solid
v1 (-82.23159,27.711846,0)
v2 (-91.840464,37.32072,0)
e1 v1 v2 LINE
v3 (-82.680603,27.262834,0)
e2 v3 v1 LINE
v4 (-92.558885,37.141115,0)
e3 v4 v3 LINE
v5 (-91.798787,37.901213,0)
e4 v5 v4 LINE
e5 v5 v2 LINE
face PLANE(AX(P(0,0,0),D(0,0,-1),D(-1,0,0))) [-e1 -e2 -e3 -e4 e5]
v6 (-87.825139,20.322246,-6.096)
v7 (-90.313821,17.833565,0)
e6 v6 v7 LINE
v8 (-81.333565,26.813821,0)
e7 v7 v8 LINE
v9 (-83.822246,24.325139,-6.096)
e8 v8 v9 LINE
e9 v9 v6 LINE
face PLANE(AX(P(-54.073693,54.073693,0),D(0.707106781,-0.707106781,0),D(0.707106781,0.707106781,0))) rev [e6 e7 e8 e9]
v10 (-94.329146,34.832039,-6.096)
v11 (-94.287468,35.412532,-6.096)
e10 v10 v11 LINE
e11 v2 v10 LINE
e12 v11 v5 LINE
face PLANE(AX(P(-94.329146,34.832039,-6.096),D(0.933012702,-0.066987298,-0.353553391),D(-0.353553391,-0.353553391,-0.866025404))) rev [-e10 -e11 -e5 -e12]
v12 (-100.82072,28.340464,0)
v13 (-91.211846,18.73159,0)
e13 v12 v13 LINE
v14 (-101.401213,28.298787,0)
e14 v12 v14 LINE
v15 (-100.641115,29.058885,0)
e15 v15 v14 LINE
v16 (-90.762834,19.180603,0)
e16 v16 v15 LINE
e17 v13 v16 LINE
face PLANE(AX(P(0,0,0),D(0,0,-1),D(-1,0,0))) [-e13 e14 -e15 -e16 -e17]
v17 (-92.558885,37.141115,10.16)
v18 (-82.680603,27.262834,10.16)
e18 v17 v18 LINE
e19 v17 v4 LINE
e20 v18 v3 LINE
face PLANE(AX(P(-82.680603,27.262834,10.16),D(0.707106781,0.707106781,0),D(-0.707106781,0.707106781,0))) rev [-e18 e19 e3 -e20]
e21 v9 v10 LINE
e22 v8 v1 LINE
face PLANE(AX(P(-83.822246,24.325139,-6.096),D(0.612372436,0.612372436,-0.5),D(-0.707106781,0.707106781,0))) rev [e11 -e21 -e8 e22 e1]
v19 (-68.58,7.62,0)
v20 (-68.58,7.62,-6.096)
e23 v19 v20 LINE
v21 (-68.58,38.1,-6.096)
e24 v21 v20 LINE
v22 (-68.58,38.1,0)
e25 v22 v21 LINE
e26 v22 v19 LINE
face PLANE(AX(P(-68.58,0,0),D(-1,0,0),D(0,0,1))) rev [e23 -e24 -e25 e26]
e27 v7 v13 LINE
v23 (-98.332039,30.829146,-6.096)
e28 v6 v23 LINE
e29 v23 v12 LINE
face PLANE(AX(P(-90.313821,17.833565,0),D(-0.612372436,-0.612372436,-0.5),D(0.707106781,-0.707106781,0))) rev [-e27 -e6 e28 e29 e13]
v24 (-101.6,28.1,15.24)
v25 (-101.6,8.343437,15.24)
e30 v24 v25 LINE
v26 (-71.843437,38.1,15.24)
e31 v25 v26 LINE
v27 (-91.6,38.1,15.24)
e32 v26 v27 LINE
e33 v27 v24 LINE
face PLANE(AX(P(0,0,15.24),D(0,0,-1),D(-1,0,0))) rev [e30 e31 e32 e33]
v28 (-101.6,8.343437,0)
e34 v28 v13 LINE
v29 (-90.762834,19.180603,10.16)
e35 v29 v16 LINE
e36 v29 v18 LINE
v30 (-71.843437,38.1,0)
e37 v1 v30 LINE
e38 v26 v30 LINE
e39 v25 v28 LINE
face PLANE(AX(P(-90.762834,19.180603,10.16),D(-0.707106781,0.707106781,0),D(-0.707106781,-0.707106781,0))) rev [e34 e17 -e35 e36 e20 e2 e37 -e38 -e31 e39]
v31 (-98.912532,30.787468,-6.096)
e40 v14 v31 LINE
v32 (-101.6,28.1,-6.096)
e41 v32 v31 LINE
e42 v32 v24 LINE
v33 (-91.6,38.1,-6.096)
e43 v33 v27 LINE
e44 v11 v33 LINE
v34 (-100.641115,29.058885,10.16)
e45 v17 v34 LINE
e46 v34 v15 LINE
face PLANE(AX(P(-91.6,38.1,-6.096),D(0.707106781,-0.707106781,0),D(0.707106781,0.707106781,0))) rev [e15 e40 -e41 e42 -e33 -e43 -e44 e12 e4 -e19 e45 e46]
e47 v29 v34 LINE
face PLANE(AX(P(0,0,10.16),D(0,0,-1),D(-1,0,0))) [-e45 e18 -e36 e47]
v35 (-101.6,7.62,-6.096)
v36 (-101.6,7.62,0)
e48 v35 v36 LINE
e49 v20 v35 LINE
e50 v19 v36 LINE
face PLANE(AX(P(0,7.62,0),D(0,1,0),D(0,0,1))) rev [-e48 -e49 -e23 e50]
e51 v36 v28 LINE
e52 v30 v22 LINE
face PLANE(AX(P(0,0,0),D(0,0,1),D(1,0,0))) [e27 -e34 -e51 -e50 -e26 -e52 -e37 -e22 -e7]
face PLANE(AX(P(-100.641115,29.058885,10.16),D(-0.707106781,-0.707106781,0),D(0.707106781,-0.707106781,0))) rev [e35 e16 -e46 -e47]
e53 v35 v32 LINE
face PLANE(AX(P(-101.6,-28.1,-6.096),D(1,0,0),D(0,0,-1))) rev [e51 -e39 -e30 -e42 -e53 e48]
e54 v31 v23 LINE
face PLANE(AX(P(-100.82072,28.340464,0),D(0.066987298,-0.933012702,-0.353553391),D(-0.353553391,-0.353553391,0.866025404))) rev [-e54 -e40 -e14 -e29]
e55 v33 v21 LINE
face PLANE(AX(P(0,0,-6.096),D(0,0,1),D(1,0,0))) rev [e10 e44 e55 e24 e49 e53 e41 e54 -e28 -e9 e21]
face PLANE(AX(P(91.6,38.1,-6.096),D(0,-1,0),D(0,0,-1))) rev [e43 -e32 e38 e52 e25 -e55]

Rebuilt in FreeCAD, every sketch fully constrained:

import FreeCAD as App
import Part
import Sketcher
Q = App.Units.Quantity


def edges_at(feature, points):
    """Names of the edges that pass closest to the given points."""
    edges = feature.Shape.Edges
    near = lambda p: min(range(len(edges)), key=lambda i: edges[i].distToShape(Part.Vertex(*p))[0])
    return sorted({f"Edge{near(p) + 1}" for p in points})

doc = App.newDocument("Part")
body = doc.addObject("PartDesign::Body", "Body")

# Sketch on XY plane
sketch1 = body.newObject("Sketcher::SketchObject", "Sketch")
sketch1.AttachmentSupport = (doc.getObject("XY_Plane"), [""])
sketch1.MapMode = "FlatFace"
sketch1.addGeometry(Part.LineSegment(App.Vector(-41.846259, 25.4, 0), App.Vector(-41.846259, 21.59, 0)), False)
sketch1.addGeometry(Part.LineSegment(App.Vector(-41.846259, 21.59, 0), App.Vector(59.753741, 21.59, 0)), False)
sketch1.addGeometry(Part.LineSegment(App.Vector(59.753741, 21.59, 0), App.Vector(59.753741, -22.86, 0)), False)
sketch1.addGeometry(Part.LineSegment(App.Vector(59.753741, -22.86, 0), App.Vector(-41.846259, -22.86, 0)), False)
sketch1.addGeometry(Part.LineSegment(App.Vector(-41.846259, -22.86, 0), App.Vector(-41.846259, -25.4, 0)), False)
sketch1.addGeometry(Part.LineSegment(App.Vector(-41.846259, -25.4, 0), App.Vector(63.563741, -25.4, 0)), False)
sketch1.addGeometry(Part.LineSegment(App.Vector(63.563741, -25.4, 0), App.Vector(63.563741, 25.4, 0)), False)
sketch1.addGeometry(Part.LineSegment(App.Vector(63.563741, 25.4, 0), App.Vector(-41.846259, 25.4, 0)), False)
sketch1.addConstraint(Sketcher.Constraint("Coincident", 0, 2, 1, 1))
sketch1.addConstraint(Sketcher.Constraint("Coincident", 1, 2, 2, 1))
sketch1.addConstraint(Sketcher.Constraint("Coincident", 2, 2, 3, 1))
sketch1.addConstraint(Sketcher.Constraint("Coincident", 3, 2, 4, 1))
sketch1.addConstraint(Sketcher.Constraint("Coincident", 4, 2, 5, 1))
sketch1.addConstraint(Sketcher.Constraint("Coincident", 5, 2, 6, 1))
sketch1.addConstraint(Sketcher.Constraint("Coincident", 6, 2, 7, 1))
sketch1.addConstraint(Sketcher.Constraint("Coincident", 7, 2, 0, 1))
sketch1.addConstraint(Sketcher.Constraint("Vertical", 0))
sketch1.addConstraint(Sketcher.Constraint("Horizontal", 1))
sketch1.addConstraint(Sketcher.Constraint("Vertical", 2))
sketch1.addConstraint(Sketcher.Constraint("Horizontal", 3))
sketch1.addConstraint(Sketcher.Constraint("Vertical", 4))
sketch1.addConstraint(Sketcher.Constraint("Horizontal", 5))
sketch1.addConstraint(Sketcher.Constraint("Vertical", 6))
sketch1.addConstraint(Sketcher.Constraint("Horizontal", 7))
sketch1.addConstraint(Sketcher.Constraint("Symmetric", 4, 2, 7, 2, -1))
sketch1.addConstraint(Sketcher.Constraint("DistanceX", 1, 1, 1, 2, Q("4 in")))
sketch1.addConstraint(Sketcher.Constraint("DistanceY", 6, 1, 6, 2, Q("2 in")))
sketch1.addConstraint(Sketcher.Constraint("DistanceY", 4, 2, 4, 1, Q("0.1 in")))
sketch1.addConstraint(Sketcher.Constraint("DistanceX", 5, 1, 5, 2, Q("4.15 in")))
sketch1.addConstraint(Sketcher.Constraint("DistanceY", 0, 2, 0, 1, Q("0.15 in")))
sketch1.addConstraint(Sketcher.Constraint("DistanceX", 0, 2, -1, 1, 41.846259))
pad1 = body.newObject("PartDesign::Pad", "Pad")
pad1.Profile = sketch1
pad1.Length = Q("1.08 in")

# Sketch on XY plane
sketch2 = body.newObject("Sketcher::SketchObject", "Sketch001")
sketch2.AttachmentSupport = (doc.getObject("XY_Plane"), [""])
sketch2.MapMode = "FlatFace"
sketch2.addGeometry(Part.LineSegment(App.Vector(59.753741, 21.59, 0), App.Vector(-41.846259, 21.59, 0)), False)
sketch2.addGeometry(Part.LineSegment(App.Vector(-41.846259, 21.59, 0), App.Vector(-41.846259, 13.97, 0)), False)
sketch2.addGeometry(Part.LineSegment(App.Vector(-41.846259, 13.97, 0), App.Vector(3.873741, 13.97, 0)), False)
sketch2.addGeometry(Part.LineSegment(App.Vector(3.873741, 13.97, 0), App.Vector(3.873741, -6.35, 0)), False)
sketch2.addGeometry(Part.LineSegment(App.Vector(3.873741, -6.35, 0), App.Vector(-41.846259, -6.35, 0)), False)
sketch2.addGeometry(Part.LineSegment(App.Vector(-41.846259, -6.35, 0), App.Vector(-41.846259, -22.86, 0)), False)
sketch2.addGeometry(Part.LineSegment(App.Vector(-41.846259, -22.86, 0), App.Vector(59.753741, -22.86, 0)), False)
sketch2.addGeometry(Part.LineSegment(App.Vector(59.753741, -22.86, 0), App.Vector(59.753741, 21.59, 0)), False)
sketch2.addConstraint(Sketcher.Constraint("Coincident", 0, 2, 1, 1))
sketch2.addConstraint(Sketcher.Constraint("Coincident", 1, 2, 2, 1))
sketch2.addConstraint(Sketcher.Constraint("Coincident", 2, 2, 3, 1))
sketch2.addConstraint(Sketcher.Constraint("Coincident", 3, 2, 4, 1))
sketch2.addConstraint(Sketcher.Constraint("Coincident", 4, 2, 5, 1))
sketch2.addConstraint(Sketcher.Constraint("Coincident", 5, 2, 6, 1))
sketch2.addConstraint(Sketcher.Constraint("Coincident", 6, 2, 7, 1))
sketch2.addConstraint(Sketcher.Constraint("Coincident", 7, 2, 0, 1))
sketch2.addConstraint(Sketcher.Constraint("Horizontal", 0))
sketch2.addConstraint(Sketcher.Constraint("Vertical", 1))
sketch2.addConstraint(Sketcher.Constraint("Horizontal", 2))
sketch2.addConstraint(Sketcher.Constraint("Vertical", 3))
sketch2.addConstraint(Sketcher.Constraint("Horizontal", 4))
sketch2.addConstraint(Sketcher.Constraint("Vertical", 5))
sketch2.addConstraint(Sketcher.Constraint("Horizontal", 6))
sketch2.addConstraint(Sketcher.Constraint("Vertical", 7))
sketch2.addConstraint(Sketcher.Constraint("Vertical", 1, 2, 4, 2))
sketch2.addConstraint(Sketcher.Constraint("DistanceX", 0, 2, 0, 1, Q("4 in")))
sketch2.addConstraint(Sketcher.Constraint("DistanceX", 2, 1, 2, 2, Q("1.8 in")))
sketch2.addConstraint(Sketcher.Constraint("DistanceY", 1, 2, 1, 1, Q("0.3 in")))
sketch2.addConstraint(Sketcher.Constraint("DistanceY", 3, 2, 3, 1, Q("0.8 in")))
sketch2.addConstraint(Sketcher.Constraint("DistanceY", 5, 2, 5, 1, Q("0.65 in")))
sketch2.addConstraint(Sketcher.Constraint("DistanceY", 5, 2, -1, 1, Q("0.9 in")))
sketch2.addConstraint(Sketcher.Constraint("DistanceX", 0, 2, -1, 1, 41.846259))
pad2 = body.newObject("PartDesign::Pad", "Pad001")
pad2.Profile = sketch2
pad2.Length = Q("0.2 in")

# Sketch on XY plane
sketch3 = body.newObject("Sketcher::SketchObject", "Sketch002")
sketch3.AttachmentSupport = (doc.getObject("XY_Plane"), [""])
sketch3.MapMode = "FlatFace"
sketch3.AttachmentOffset = App.Placement(App.Vector(0, 0, 0.2 * 25.4), App.Rotation())
sketch3.addGeometry(Part.LineSegment(App.Vector(-33.927137, 21.59, 0), App.Vector(-37.065382, 21.59, 0)), False)
sketch3.addGeometry(Part.LineSegment(App.Vector(-37.065382, 21.59, 0), App.Vector(-38.634504, 18.8722, 0)), False)
sketch3.addGeometry(Part.LineSegment(App.Vector(-38.634504, 18.8722, 0), App.Vector(-37.065382, 16.1544, 0)), False)
sketch3.addGeometry(Part.LineSegment(App.Vector(-37.065382, 16.1544, 0), App.Vector(-33.927137, 16.1544, 0)), False)
sketch3.addGeometry(Part.LineSegment(App.Vector(-33.927137, 16.1544, 0), App.Vector(-32.358014, 18.8722, 0)), False)
sketch3.addGeometry(Part.LineSegment(App.Vector(-32.358014, 18.8722, 0), App.Vector(-33.927137, 21.59, 0)), False)
sketch3.addGeometry(Part.Circle(App.Vector(-35.496259, 18.8722, 0), App.Vector(0, 0, 1), 1.524), False)
sketch3.addGeometry(Part.LineSegment(App.Vector(28.847137, 16.1544, 0), App.Vector(31.985382, 16.1544, 0)), False)
sketch3.addGeometry(Part.LineSegment(App.Vector(31.985382, 16.1544, 0), App.Vector(33.554504, 18.8722, 0)), False)
sketch3.addGeometry(Part.LineSegment(App.Vector(33.554504, 18.8722, 0), App.Vector(31.985382, 21.59, 0)), False)
sketch3.addGeometry(Part.LineSegment(App.Vector(31.985382, 21.59, 0), App.Vector(28.847137, 21.59, 0)), False)
sketch3.addGeometry(Part.LineSegment(App.Vector(28.847137, 21.59, 0), App.Vector(27.278014, 18.8722, 0)), False)
sketch3.addGeometry(Part.LineSegment(App.Vector(27.278014, 18.8722, 0), App.Vector(28.847137, 16.1544, 0)), False)
sketch3.addGeometry(Part.Circle(App.Vector(30.416259, 18.8722, 0), App.Vector(0, 0, 1), 1.524), False)
sketch3.addGeometry(Part.LineSegment(App.Vector(33.554504, -18.8722, 0), App.Vector(31.985382, -16.1544, 0)), False)
sketch3.addGeometry(Part.LineSegment(App.Vector(31.985382, -16.1544, 0), App.Vector(28.847137, -16.1544, 0)), False)
sketch3.addGeometry(Part.LineSegment(App.Vector(28.847137, -16.1544, 0), App.Vector(27.278014, -18.8722, 0)), False)
sketch3.addGeometry(Part.LineSegment(App.Vector(27.278014, -18.8722, 0), App.Vector(28.847137, -21.59, 0)), False)
sketch3.addGeometry(Part.LineSegment(App.Vector(28.847137, -21.59, 0), App.Vector(31.985382, -21.59, 0)), False)
sketch3.addGeometry(Part.LineSegment(App.Vector(31.985382, -21.59, 0), App.Vector(33.554504, -18.8722, 0)), False)
sketch3.addGeometry(Part.Circle(App.Vector(30.416259, -18.8722, 0), App.Vector(0, 0, 1), 1.524), False)
sketch3.addGeometry(Part.LineSegment(App.Vector(-37.065382, -16.1544, 0), App.Vector(-38.634504, -18.8722, 0)), False)
sketch3.addGeometry(Part.LineSegment(App.Vector(-38.634504, -18.8722, 0), App.Vector(-37.065382, -21.59, 0)), False)
sketch3.addGeometry(Part.LineSegment(App.Vector(-37.065382, -21.59, 0), App.Vector(-33.927137, -21.59, 0)), False)
sketch3.addGeometry(Part.LineSegment(App.Vector(-33.927137, -21.59, 0), App.Vector(-32.358014, -18.8722, 0)), False)
sketch3.addGeometry(Part.LineSegment(App.Vector(-32.358014, -18.8722, 0), App.Vector(-33.927137, -16.1544, 0)), False)
sketch3.addGeometry(Part.LineSegment(App.Vector(-33.927137, -16.1544, 0), App.Vector(-37.065382, -16.1544, 0)), False)
sketch3.addGeometry(Part.Circle(App.Vector(-35.496259, -18.8722, 0), App.Vector(0, 0, 1), 1.524), False)
sketch3.addConstraint(Sketcher.Constraint("Coincident", 0, 2, 1, 1))
sketch3.addConstraint(Sketcher.Constraint("Coincident", 1, 2, 2, 1))
sketch3.addConstraint(Sketcher.Constraint("Coincident", 2, 2, 3, 1))
sketch3.addConstraint(Sketcher.Constraint("Coincident", 3, 2, 4, 1))
sketch3.addConstraint(Sketcher.Constraint("Coincident", 4, 2, 5, 1))
sketch3.addConstraint(Sketcher.Constraint("Coincident", 5, 2, 0, 1))
sketch3.addConstraint(Sketcher.Constraint("Coincident", 7, 2, 8, 1))
sketch3.addConstraint(Sketcher.Constraint("Coincident", 8, 2, 9, 1))
sketch3.addConstraint(Sketcher.Constraint("Coincident", 9, 2, 10, 1))
sketch3.addConstraint(Sketcher.Constraint("Coincident", 10, 2, 11, 1))
sketch3.addConstraint(Sketcher.Constraint("Coincident", 11, 2, 12, 1))
sketch3.addConstraint(Sketcher.Constraint("Coincident", 12, 2, 7, 1))
sketch3.addConstraint(Sketcher.Constraint("Coincident", 14, 2, 15, 1))
sketch3.addConstraint(Sketcher.Constraint("Coincident", 15, 2, 16, 1))
sketch3.addConstraint(Sketcher.Constraint("Coincident", 16, 2, 17, 1))
sketch3.addConstraint(Sketcher.Constraint("Coincident", 17, 2, 18, 1))
sketch3.addConstraint(Sketcher.Constraint("Coincident", 18, 2, 19, 1))
sketch3.addConstraint(Sketcher.Constraint("Coincident", 19, 2, 14, 1))
sketch3.addConstraint(Sketcher.Constraint("Coincident", 21, 2, 22, 1))
sketch3.addConstraint(Sketcher.Constraint("Coincident", 22, 2, 23, 1))
sketch3.addConstraint(Sketcher.Constraint("Coincident", 23, 2, 24, 1))
sketch3.addConstraint(Sketcher.Constraint("Coincident", 24, 2, 25, 1))
sketch3.addConstraint(Sketcher.Constraint("Coincident", 25, 2, 26, 1))
sketch3.addConstraint(Sketcher.Constraint("Coincident", 26, 2, 21, 1))
sketch3.addConstraint(Sketcher.Constraint("Horizontal", 0))
sketch3.addConstraint(Sketcher.Constraint("Horizontal", 3))
sketch3.addConstraint(Sketcher.Constraint("Horizontal", 7))
sketch3.addConstraint(Sketcher.Constraint("Horizontal", 10))
sketch3.addConstraint(Sketcher.Constraint("Horizontal", 15))
sketch3.addConstraint(Sketcher.Constraint("Horizontal", 18))
sketch3.addConstraint(Sketcher.Constraint("Horizontal", 23))
sketch3.addConstraint(Sketcher.Constraint("Horizontal", 26))
sketch3.addConstraint(Sketcher.Constraint("Equal", 6, 13))
sketch3.addConstraint(Sketcher.Constraint("Equal", 13, 20))
sketch3.addConstraint(Sketcher.Constraint("Equal", 20, 27))
sketch3.addConstraint(Sketcher.Constraint("Symmetric", 13, 3, 20, 3, -1))
sketch3.addConstraint(Sketcher.Constraint("Symmetric", 6, 3, 27, 3, -1))
sketch3.addConstraint(Sketcher.Constraint("Symmetric", 7, 2, 14, 2, -1))
sketch3.addConstraint(Sketcher.Constraint("Symmetric", 11, 2, 16, 2, -1))
sketch3.addConstraint(Sketcher.Constraint("Symmetric", 10, 2, 17, 2, -1))
sketch3.addConstraint(Sketcher.Constraint("Symmetric", 8, 2, 19, 2, -1))
sketch3.addConstraint(Sketcher.Constraint("Symmetric", 1, 2, 21, 2, -1))
sketch3.addConstraint(Sketcher.Constraint("Symmetric", 0, 2, 22, 2, -1))
sketch3.addConstraint(Sketcher.Constraint("Symmetric", 4, 2, 24, 2, -1))
sketch3.addConstraint(Sketcher.Constraint("Symmetric", 3, 2, 25, 2, -1))
sketch3.addConstraint(Sketcher.Constraint("Parallel", 1, 4))
sketch3.addConstraint(Sketcher.Constraint("Parallel", 2, 5))
sketch3.addConstraint(Sketcher.Constraint("Parallel", 4, 8))
sketch3.addConstraint(Sketcher.Constraint("Parallel", 5, 9))
sketch3.addConstraint(Sketcher.Constraint("Parallel", 8, 11))
sketch3.addConstraint(Sketcher.Constraint("Parallel", 9, 12))
sketch3.addConstraint(Sketcher.Constraint("Parallel", 12, 14))
sketch3.addConstraint(Sketcher.Constraint("Parallel", 11, 16))
sketch3.addConstraint(Sketcher.Constraint("Parallel", 16, 19))
sketch3.addConstraint(Sketcher.Constraint("Parallel", 19, 21))
sketch3.addConstraint(Sketcher.Constraint("Parallel", 21, 24))
sketch3.addConstraint(Sketcher.Constraint("Horizontal", 6, 3, 13, 3))
sketch3.addConstraint(Sketcher.Constraint("Horizontal", 13, 3, 1, 2))
sketch3.addConstraint(Sketcher.Constraint("Horizontal", 1, 2, 4, 2))
sketch3.addConstraint(Sketcher.Constraint("Horizontal", 3, 2, 7, 2))
sketch3.addConstraint(Sketcher.Constraint("Horizontal", 4, 2, 8, 2))
sketch3.addConstraint(Sketcher.Constraint("Horizontal", 5, 2, 9, 2))
sketch3.addConstraint(Sketcher.Constraint("Horizontal", 8, 2, 11, 2))
sketch3.addConstraint(Sketcher.Constraint("Vertical", 0, 2, 2, 2))
sketch3.addConstraint(Sketcher.Constraint("Equal", 3, 7))
sketch3.addConstraint(Sketcher.Constraint("Diameter", 6, Q("0.12 in")))
sketch3.addConstraint(Sketcher.Constraint("Angle", 1, Q("-120 deg")))
sketch3.addConstraint(Sketcher.Constraint("DistanceY", -1, 1, 0, 2, Q("0.85 in")))
sketch3.addConstraint(Sketcher.Constraint("DistanceY", -1, 1, 6, 3, Q("0.743 in")))
sketch3.addConstraint(Sketcher.Constraint("DistanceX", 0, 2, 0, 1, 3.138245))
sketch3.addConstraint(Sketcher.Constraint("DistanceX", 6, 3, -1, 1, 35.496259))
sketch3.addConstraint(Sketcher.Constraint("DistanceX", -1, 1, 13, 3, 30.416259))
sketch3.addConstraint(Sketcher.Constraint("DistanceX", 0, 2, -1, 1, 37.065382))
sketch3.addConstraint(Sketcher.Constraint("DistanceX", -1, 1, 7, 2, 31.985382))
pocket1 = body.newObject("PartDesign::Pocket", "Pocket")
pocket1.Profile = sketch3
pocket1.Length = Q("0.09 in")

# Sketch on XY plane
sketch4 = body.newObject("Sketcher::SketchObject", "Sketch003")
sketch4.AttachmentSupport = (doc.getObject("XY_Plane"), [""])
sketch4.MapMode = "FlatFace"
sketch4.AttachmentOffset = App.Placement(App.Vector(0, 0, 0.2 * 25.4), App.Rotation())
sketch4.addGeometry(Part.Circle(App.Vector(-35.496259, 18.8722, 0), App.Vector(0, 0, 1), 1.524), False)
sketch4.addGeometry(Part.Circle(App.Vector(30.416259, 18.8722, 0), App.Vector(0, 0, 1), 1.524), False)
sketch4.addGeometry(Part.Circle(App.Vector(-35.496259, -18.8722, 0), App.Vector(0, 0, 1), 1.524), False)
sketch4.addGeometry(Part.Circle(App.Vector(30.416259, -18.8722, 0), App.Vector(0, 0, 1), 1.524), False)
sketch4.addConstraint(Sketcher.Constraint("Equal", 0, 1))
sketch4.addConstraint(Sketcher.Constraint("Equal", 1, 2))
sketch4.addConstraint(Sketcher.Constraint("Equal", 2, 3))
sketch4.addConstraint(Sketcher.Constraint("Symmetric", 0, 3, 2, 3, -1))
sketch4.addConstraint(Sketcher.Constraint("Symmetric", 1, 3, 3, 3, -1))
sketch4.addConstraint(Sketcher.Constraint("Horizontal", 0, 3, 1, 3))
sketch4.addConstraint(Sketcher.Constraint("Diameter", 0, Q("0.12 in")))
sketch4.addConstraint(Sketcher.Constraint("DistanceY", -1, 1, 0, 3, Q("0.743 in")))
sketch4.addConstraint(Sketcher.Constraint("DistanceX", 0, 3, -1, 1, 35.496259))
sketch4.addConstraint(Sketcher.Constraint("DistanceX", -1, 1, 1, 3, 30.416259))
pocket2 = body.newObject("PartDesign::Pocket", "Pocket001")
pocket2.Profile = sketch4
pocket2.Type = "ThroughAll"

# Sketch on XY plane
sketch5 = body.newObject("Sketcher::SketchObject", "Sketch004")
sketch5.AttachmentSupport = (doc.getObject("XY_Plane"), [""])
sketch5.MapMode = "FlatFace"
sketch5.AttachmentOffset = App.Placement(App.Vector(0, 0, 1.08 * 25.4), App.Rotation())
sketch5.addGeometry(Part.LineSegment(App.Vector(63.563741, 25.4, 0), App.Vector(-41.846259, 25.4, 0)), False)
sketch5.addGeometry(Part.LineSegment(App.Vector(-41.846259, 25.4, 0), App.Vector(-41.846259, 6.35, 0)), False)
sketch5.addGeometry(Part.LineSegment(App.Vector(-41.846259, 6.35, 0), App.Vector(-35.496259, 6.35, 0)), False)
sketch5.addGeometry(Part.LineSegment(App.Vector(-35.496259, 6.35, 0), App.Vector(-35.496259, -6.35, 0)), False)
sketch5.addGeometry(Part.LineSegment(App.Vector(-35.496259, -6.35, 0), App.Vector(-41.846259, -6.35, 0)), False)
sketch5.addGeometry(Part.LineSegment(App.Vector(-41.846259, -6.35, 0), App.Vector(-41.846259, -25.4, 0)), False)
sketch5.addGeometry(Part.LineSegment(App.Vector(-41.846259, -25.4, 0), App.Vector(63.563741, -25.4, 0)), False)
sketch5.addGeometry(Part.LineSegment(App.Vector(63.563741, -25.4, 0), App.Vector(63.563741, 25.4, 0)), False)
sketch5.addConstraint(Sketcher.Constraint("Coincident", 0, 2, 1, 1))
sketch5.addConstraint(Sketcher.Constraint("Coincident", 1, 2, 2, 1))
sketch5.addConstraint(Sketcher.Constraint("Coincident", 2, 2, 3, 1))
sketch5.addConstraint(Sketcher.Constraint("Coincident", 3, 2, 4, 1))
sketch5.addConstraint(Sketcher.Constraint("Coincident", 4, 2, 5, 1))
sketch5.addConstraint(Sketcher.Constraint("Coincident", 5, 2, 6, 1))
sketch5.addConstraint(Sketcher.Constraint("Coincident", 6, 2, 7, 1))
sketch5.addConstraint(Sketcher.Constraint("Coincident", 7, 2, 0, 1))
sketch5.addConstraint(Sketcher.Constraint("Horizontal", 0))
sketch5.addConstraint(Sketcher.Constraint("Vertical", 1))
sketch5.addConstraint(Sketcher.Constraint("Horizontal", 2))
sketch5.addConstraint(Sketcher.Constraint("Vertical", 3))
sketch5.addConstraint(Sketcher.Constraint("Horizontal", 4))
sketch5.addConstraint(Sketcher.Constraint("Vertical", 5))
sketch5.addConstraint(Sketcher.Constraint("Horizontal", 6))
sketch5.addConstraint(Sketcher.Constraint("Vertical", 7))
sketch5.addConstraint(Sketcher.Constraint("Symmetric", 1, 2, 4, 2, -1))
sketch5.addConstraint(Sketcher.Constraint("Equal", 1, 5))
sketch5.addConstraint(Sketcher.Constraint("DistanceY", 7, 1, 7, 2, Q("2 in")))
sketch5.addConstraint(Sketcher.Constraint("DistanceY", 3, 2, 3, 1, Q("0.5 in")))
sketch5.addConstraint(Sketcher.Constraint("DistanceX", 0, 2, 0, 1, Q("4.15 in")))
sketch5.addConstraint(Sketcher.Constraint("DistanceX", 2, 1, 2, 2, Q("0.25 in")))
sketch5.addConstraint(Sketcher.Constraint("DistanceX", 0, 2, -1, 1, 41.846259))
pad3 = body.newObject("PartDesign::Pad", "Pad002")
pad3.Profile = sketch5
pad3.Length = Q("0.15 in")
doc.recompute()

fillet = body.newObject("PartDesign::Fillet", "Fillet")
fillet.Base = (pad3, edges_at(pad3, [
    (63.564, 25.4, 15.621),
    (63.564, -25.4, 15.621),
    (10.859, -25.4, 31.242),
    (63.564, 0, 31.242),
    (10.859, 25.4, 31.242),
]))
fillet.Radius = Q("0.1 in")
doc.recompute()

chamfer = body.newObject("PartDesign::Chamfer", "Chamfer")
chamfer.Base = (fillet, edges_at(fillet, [
    (-41.846, 13.97, 27.432),
    (-41.846, 6.35, 29.337),
    (-41.846, 21.59, 16.256),
    (-41.846, -14.605, 27.432),
    (-41.846, -6.35, 29.337),
    (-38.671, 6.35, 31.242),
    (-35.496, 0, 31.242),
    (-38.671, -6.35, 31.242),
    (-41.846, -22.86, 16.256),
]))
chamfer.Size = Q("0.05 in")
doc.recompute()

chamfer2 = body.newObject("PartDesign::Chamfer", "Chamfer001")
chamfer2.Base = (chamfer, edges_at(chamfer, [
    (28.892, 18.872, 0),
    (-37.02, -18.872, 0),
    (28.892, -18.872, 0),
    (-37.02, 18.872, 0),
]))
chamfer2.Size = Q("0.01 in")

# Sketch on XY plane
sketch6 = body.newObject("Sketcher::SketchObject", "Sketch005")
sketch6.AttachmentSupport = (doc.getObject("XY_Plane"), [""])
sketch6.MapMode = "FlatFace"
sketch6.AttachmentOffset = App.Placement(App.Vector(0, 0, 0.2 * 25.4), App.Rotation())
sketch6.addGeometry(Part.LineSegment(App.Vector(-41.846259, 21.59, 0), App.Vector(-41.846259, -22.86, 0)), False)
sketch6.addGeometry(Part.LineSegment(App.Vector(-41.846259, -22.86, 0), App.Vector(59.753741, -22.86, 0)), False)
sketch6.addGeometry(Part.LineSegment(App.Vector(59.753741, -22.86, 0), App.Vector(59.753741, 21.59, 0)), False)
sketch6.addGeometry(Part.LineSegment(App.Vector(59.753741, 21.59, 0), App.Vector(-41.846259, 21.59, 0)), False)
sketch6.addConstraint(Sketcher.Constraint("Coincident", 0, 2, 1, 1))
sketch6.addConstraint(Sketcher.Constraint("Coincident", 1, 2, 2, 1))
sketch6.addConstraint(Sketcher.Constraint("Coincident", 2, 2, 3, 1))
sketch6.addConstraint(Sketcher.Constraint("Coincident", 3, 2, 0, 1))
sketch6.addConstraint(Sketcher.Constraint("Vertical", 0))
sketch6.addConstraint(Sketcher.Constraint("Horizontal", 1))
sketch6.addConstraint(Sketcher.Constraint("Vertical", 2))
sketch6.addConstraint(Sketcher.Constraint("Horizontal", 3))
sketch6.addConstraint(Sketcher.Constraint("DistanceX", 1, 1, 1, 2, Q("4 in")))
sketch6.addConstraint(Sketcher.Constraint("DistanceY", 0, 2, 0, 1, Q("1.75 in")))
sketch6.addConstraint(Sketcher.Constraint("DistanceY", 0, 2, -1, 1, Q("0.9 in")))
sketch6.addConstraint(Sketcher.Constraint("DistanceX", 0, 2, -1, 1, 41.846259))
pocket3 = body.newObject("PartDesign::Pocket", "Pocket002")
pocket3.Profile = sketch6
pocket3.Length = Q("0.2 in")
doc.recompute()

chamfer3 = body.newObject("PartDesign::Chamfer", "Chamfer002")
chamfer3.Base = (pocket3, edges_at(pocket3, [(-41.846, -22.86, 2.54), (-41.846, 21.59, 2.54)]))
chamfer3.Size = Q("0.05 in")

# Sketch on XY plane
sketch7 = body.newObject("Sketcher::SketchObject", "Sketch006")
sketch7.AttachmentSupport = (doc.getObject("XY_Plane"), [""])
sketch7.MapMode = "FlatFace"
sketch7.addGeometry(Part.LineSegment(App.Vector(91.6, 38.1, 0), App.Vector(101.6, 28.1, 0)), False)
sketch7.addGeometry(Part.LineSegment(App.Vector(101.6, 28.1, 0), App.Vector(101.6, -28.1, 0)), False)
sketch7.addGeometry(Part.LineSegment(App.Vector(101.6, -28.1, 0), App.Vector(91.6, -38.1, 0)), False)
sketch7.addGeometry(Part.LineSegment(App.Vector(91.6, -38.1, 0), App.Vector(-91.6, -38.1, 0)), False)
sketch7.addGeometry(Part.LineSegment(App.Vector(-91.6, -38.1, 0), App.Vector(-101.6, -28.1, 0)), False)
sketch7.addGeometry(Part.LineSegment(App.Vector(-101.6, -28.1, 0), App.Vector(-101.6, 28.1, 0)), False)
sketch7.addGeometry(Part.LineSegment(App.Vector(-101.6, 28.1, 0), App.Vector(-91.6, 38.1, 0)), False)
sketch7.addGeometry(Part.LineSegment(App.Vector(-91.6, 38.1, 0), App.Vector(91.6, 38.1, 0)), False)
sketch7.addConstraint(Sketcher.Constraint("Coincident", 0, 2, 1, 1))
sketch7.addConstraint(Sketcher.Constraint("Coincident", 1, 2, 2, 1))
sketch7.addConstraint(Sketcher.Constraint("Coincident", 2, 2, 3, 1))
sketch7.addConstraint(Sketcher.Constraint("Coincident", 3, 2, 4, 1))
sketch7.addConstraint(Sketcher.Constraint("Coincident", 4, 2, 5, 1))
sketch7.addConstraint(Sketcher.Constraint("Coincident", 5, 2, 6, 1))
sketch7.addConstraint(Sketcher.Constraint("Coincident", 6, 2, 7, 1))
sketch7.addConstraint(Sketcher.Constraint("Coincident", 7, 2, 0, 1))
sketch7.addConstraint(Sketcher.Constraint("Vertical", 1))
sketch7.addConstraint(Sketcher.Constraint("Horizontal", 3))
sketch7.addConstraint(Sketcher.Constraint("Vertical", 5))
sketch7.addConstraint(Sketcher.Constraint("Horizontal", 7))
sketch7.addConstraint(Sketcher.Constraint("Symmetric", 0, 2, 4, 2, -1, 1))
sketch7.addConstraint(Sketcher.Constraint("Symmetric", 2, 2, 6, 2, -1, 1))
sketch7.addConstraint(Sketcher.Constraint("Perpendicular", 0, 2))
sketch7.addConstraint(Sketcher.Constraint("Perpendicular", 2, 4))
sketch7.addConstraint(Sketcher.Constraint("Perpendicular", 4, 6))
sketch7.addConstraint(Sketcher.Constraint("Horizontal", 1, 2, 4, 2))
sketch7.addConstraint(Sketcher.Constraint("Vertical", 3, 2, 6, 2))
sketch7.addConstraint(Sketcher.Constraint("DistanceX", -1, 1, 0, 2, Q("4 in")))
sketch7.addConstraint(Sketcher.Constraint("DistanceY", 3, 2, 6, 2, Q("3 in")))
sketch7.addConstraint(Sketcher.Constraint("DistanceX", 3, 2, 3, 1, 183.2))
pad4 = body.newObject("PartDesign::Pad", "Pad003")
pad4.Profile = sketch7
pad4.Length = Q("0.24 in")
pad4.Reversed = True
doc.recompute()

fillet2 = body.newObject("PartDesign::Fillet", "Fillet001")
fillet2.Base = (pad4, edges_at(pad4, [
    (9.589, -25.4, 0),
    (63.564, 0, 0),
    (9.589, 25.4, 0),
    (62.82, 24.656, 0),
    (62.82, -24.656, 0),
]))
fillet2.Radius = Q("0.05 in")

# Sketch on an angled plane
sketch8 = body.newObject("Sketcher::SketchObject", "Sketch007")
sketch8.Placement = App.Placement(App.Vector(-64.85, 64.85, 0), App.Rotation(App.Vector(0, 0, 1), App.Vector(0.707106781, 0.707106781, 0), App.Vector(-0.707106781, 0.707106781, 0), "ZXY"))
sketch8.addGeometry(Part.LineSegment(App.Vector(-6.096, -42.070808, 0), App.Vector(-6.096, -47.731753, 0)), False)
sketch8.addGeometry(Part.LineSegment(App.Vector(-6.096, -47.731753, 0), App.Vector(0, -51.251281, 0)), False)
sketch8.addGeometry(Part.LineSegment(App.Vector(0, -51.251281, 0), App.Vector(0, -38.551281, 0)), False)
sketch8.addGeometry(Part.LineSegment(App.Vector(0, -38.551281, 0), App.Vector(-6.096, -42.070808, 0)), False)
sketch8.addConstraint(Sketcher.Constraint("Coincident", 0, 2, 1, 1))
sketch8.addConstraint(Sketcher.Constraint("Coincident", 1, 2, 2, 1))
sketch8.addConstraint(Sketcher.Constraint("Coincident", 2, 2, 3, 1))
sketch8.addConstraint(Sketcher.Constraint("Coincident", 3, 2, 0, 1))
sketch8.addConstraint(Sketcher.Constraint("Vertical", 0))
sketch8.addConstraint(Sketcher.Constraint("Vertical", 2))
sketch8.addConstraint(Sketcher.Constraint("PointOnObject", 1, 2, -2))
sketch8.addConstraint(Sketcher.Constraint("Equal", 1, 3))
sketch8.addConstraint(Sketcher.Constraint("DistanceY", 2, 1, 2, 2, Q("0.5 in")))
sketch8.addConstraint(Sketcher.Constraint("Angle", 1, Q("-30 deg")))
sketch8.addConstraint(Sketcher.Constraint("DistanceX", 0, 2, -1, 1, Q("0.24 in")))
sketch8.addConstraint(Sketcher.Constraint("DistanceY", 1, 2, -1, 1, 51.251281))
pocket4 = body.newObject("PartDesign::Pocket", "Pocket003")
pocket4.Profile = sketch8
pocket4.Length = Q("0.6 in")
doc.recompute()

mirrored = body.newObject("PartDesign::Mirrored", "Mirrored")
mirrored.Originals = [pocket4]
mirrored.MirrorPlane = (doc.getObject("XZ_Plane"), [""])
body.Tip = mirrored
doc.recompute()

mirrored2 = body.newObject("PartDesign::Mirrored", "Mirrored001")
mirrored2.Originals = [pocket4]
mirrored2.MirrorPlane = (doc.getObject("YZ_Plane"), [""])
body.Tip = mirrored2

# Sketch on an angled plane
sketch9 = body.newObject("Sketcher::SketchObject", "Sketch008")
sketch9.Placement = App.Placement(App.Vector(64.85, -64.85, 0), App.Rotation(App.Vector(0, 0, 1), App.Vector(-0.707106781, -0.707106781, 0), App.Vector(0.707106781, -0.707106781, 0), "ZXY"))
sketch9.addGeometry(Part.LineSegment(App.Vector(-6.096, -42.070808, 0), App.Vector(-6.096, -47.731753, 0)), False)
sketch9.addGeometry(Part.LineSegment(App.Vector(-6.096, -47.731753, 0), App.Vector(0, -51.251281, 0)), False)
sketch9.addGeometry(Part.LineSegment(App.Vector(0, -51.251281, 0), App.Vector(0, -38.551281, 0)), False)
sketch9.addGeometry(Part.LineSegment(App.Vector(0, -38.551281, 0), App.Vector(-6.096, -42.070808, 0)), False)
sketch9.addConstraint(Sketcher.Constraint("Coincident", 0, 2, 1, 1))
sketch9.addConstraint(Sketcher.Constraint("Coincident", 1, 2, 2, 1))
sketch9.addConstraint(Sketcher.Constraint("Coincident", 2, 2, 3, 1))
sketch9.addConstraint(Sketcher.Constraint("Coincident", 3, 2, 0, 1))
sketch9.addConstraint(Sketcher.Constraint("Vertical", 0))
sketch9.addConstraint(Sketcher.Constraint("Vertical", 2))
sketch9.addConstraint(Sketcher.Constraint("PointOnObject", 1, 2, -2))
sketch9.addConstraint(Sketcher.Constraint("Equal", 1, 3))
sketch9.addConstraint(Sketcher.Constraint("DistanceY", 2, 1, 2, 2, Q("0.5 in")))
sketch9.addConstraint(Sketcher.Constraint("Angle", 1, Q("-30 deg")))
sketch9.addConstraint(Sketcher.Constraint("DistanceX", 0, 2, -1, 1, Q("0.24 in")))
sketch9.addConstraint(Sketcher.Constraint("DistanceY", 1, 2, -1, 1, 51.251281))
pocket5 = body.newObject("PartDesign::Pocket", "Pocket004")
pocket5.Profile = sketch9
pocket5.Length = Q("0.6 in")
doc.recompute()

chamfer4 = body.newObject("PartDesign::Chamfer", "Chamfer003")
chamfer4.Base = (pocket5, edges_at(pocket5, [
    (-99.846, 29.854, -3.048),
    (-93.354, 36.346, -3.048),
    (-99.846, -29.854, -3.048),
    (-93.354, -36.346, -3.048),
    (99.846, 29.854, -3.048),
    (93.354, 36.346, -3.048),
    (99.846, -29.854, -3.048),
    (93.354, -36.346, -3.048),
]))
chamfer4.Size = Q("0.015 in")

# Sketch on XY plane
sketch10 = body.newObject("Sketcher::SketchObject", "Sketch009")
sketch10.AttachmentSupport = (doc.getObject("XY_Plane"), [""])
sketch10.MapMode = "FlatFace"
sketch10.AttachmentOffset = App.Placement(App.Vector(0, 0, 1.23 * 25.4), App.Rotation())
sketch10.addGeometry(Part.LineSegment(App.Vector(-67.934833, 33.6729, 0), App.Vector(-67.934833, -33.6729, 0)), False)
sketch10.addGeometry(Part.LineSegment(App.Vector(-67.934833, -33.6729, 0), App.Vector(67.934833, -33.6729, 0)), False)
sketch10.addGeometry(Part.LineSegment(App.Vector(67.934833, -33.6729, 0), App.Vector(67.934833, 33.6729, 0)), False)
sketch10.addGeometry(Part.LineSegment(App.Vector(67.934833, 33.6729, 0), App.Vector(-67.934833, 33.6729, 0)), False)
sketch10.addConstraint(Sketcher.Constraint("Coincident", 0, 2, 1, 1))
sketch10.addConstraint(Sketcher.Constraint("Coincident", 1, 2, 2, 1))
sketch10.addConstraint(Sketcher.Constraint("Coincident", 2, 2, 3, 1))
sketch10.addConstraint(Sketcher.Constraint("Coincident", 3, 2, 0, 1))
sketch10.addConstraint(Sketcher.Constraint("Vertical", 0))
sketch10.addConstraint(Sketcher.Constraint("Horizontal", 1))
sketch10.addConstraint(Sketcher.Constraint("Vertical", 2))
sketch10.addConstraint(Sketcher.Constraint("Horizontal", 3))
sketch10.addConstraint(Sketcher.Constraint("Symmetric", 0, 2, 2, 2, -1, 1))
sketch10.addConstraint(Sketcher.Constraint("DistanceY", 0, 2, 0, 1, 67.3458))
sketch10.addConstraint(Sketcher.Constraint("DistanceX", 1, 1, 1, 2, 135.869667))
pocket6 = body.newObject("PartDesign::Pocket", "Pocket005")
pocket6.Profile = sketch10
pocket6.Length = Q("1.23 in")

# Sketch on XY plane
sketch11 = body.newObject("Sketcher::SketchObject", "Sketch010")
sketch11.AttachmentSupport = (doc.getObject("XY_Plane"), [""])
sketch11.MapMode = "FlatFace"
sketch11.addGeometry(Part.LineSegment(App.Vector(65.405, 22.86, 0), App.Vector(65.405, -21.59, 0)), False)
sketch11.addGeometry(Part.LineSegment(App.Vector(65.405, -21.59, 0), App.Vector(-10.795, -21.59, 0)), False)
sketch11.addGeometry(Part.LineSegment(App.Vector(-10.795, -21.59, 0), App.Vector(-10.795, -25.4, 0)), False)
sketch11.addGeometry(Part.LineSegment(App.Vector(-10.795, -25.4, 0), App.Vector(69.215, -25.4, 0)), False)
sketch11.addGeometry(Part.LineSegment(App.Vector(69.215, -25.4, 0), App.Vector(69.215, 26.67, 0)), False)
sketch11.addGeometry(Part.LineSegment(App.Vector(69.215, 26.67, 0), App.Vector(-10.795, 26.67, 0)), False)
sketch11.addGeometry(Part.LineSegment(App.Vector(-10.795, 26.67, 0), App.Vector(-10.795, 22.86, 0)), False)
sketch11.addGeometry(Part.LineSegment(App.Vector(-10.795, 22.86, 0), App.Vector(65.405, 22.86, 0)), False)
sketch11.addConstraint(Sketcher.Constraint("Coincident", 0, 2, 1, 1))
sketch11.addConstraint(Sketcher.Constraint("Coincident", 1, 2, 2, 1))
sketch11.addConstraint(Sketcher.Constraint("Coincident", 2, 2, 3, 1))
sketch11.addConstraint(Sketcher.Constraint("Coincident", 3, 2, 4, 1))
sketch11.addConstraint(Sketcher.Constraint("Coincident", 4, 2, 5, 1))
sketch11.addConstraint(Sketcher.Constraint("Coincident", 5, 2, 6, 1))
sketch11.addConstraint(Sketcher.Constraint("Coincident", 6, 2, 7, 1))
sketch11.addConstraint(Sketcher.Constraint("Coincident", 7, 2, 0, 1))
sketch11.addConstraint(Sketcher.Constraint("Vertical", 0))
sketch11.addConstraint(Sketcher.Constraint("Horizontal", 1))
sketch11.addConstraint(Sketcher.Constraint("Vertical", 2))
sketch11.addConstraint(Sketcher.Constraint("Horizontal", 3))
sketch11.addConstraint(Sketcher.Constraint("Vertical", 4))
sketch11.addConstraint(Sketcher.Constraint("Horizontal", 5))
sketch11.addConstraint(Sketcher.Constraint("Vertical", 6))
sketch11.addConstraint(Sketcher.Constraint("Horizontal", 7))
sketch11.addConstraint(Sketcher.Constraint("Vertical", 2, 2, 5, 2))
sketch11.addConstraint(Sketcher.Constraint("Equal", 2, 6))
sketch11.addConstraint(Sketcher.Constraint("DistanceX", 1, 2, 1, 1, Q("3 in")))
sketch11.addConstraint(Sketcher.Constraint("DistanceY", 2, 2, -1, 1, Q("1 in")))
sketch11.addConstraint(Sketcher.Constraint("DistanceX", 3, 1, 3, 2, Q("3.15 in")))
sketch11.addConstraint(Sketcher.Constraint("DistanceY", 0, 2, 0, 1, Q("1.75 in")))
sketch11.addConstraint(Sketcher.Constraint("DistanceY", 2, 2, 2, 1, Q("0.15 in")))
sketch11.addConstraint(Sketcher.Constraint("DistanceX", -1, 1, 0, 2, Q("2.575 in")))
pad5 = body.newObject("PartDesign::Pad", "Pad004")
pad5.Profile = sketch11
pad5.Length = Q("0.8 in")

# Sketch on XY plane
sketch12 = body.newObject("Sketcher::SketchObject", "Sketch011")
sketch12.AttachmentSupport = (doc.getObject("XY_Plane"), [""])
sketch12.MapMode = "FlatFace"
sketch12.AttachmentOffset = App.Placement(App.Vector(0, 0, 0.8 * 25.4), App.Rotation())
sketch12.addGeometry(Part.LineSegment(App.Vector(-10.795, 26.67, 0), App.Vector(-10.795, -25.4, 0)), False)
sketch12.addGeometry(Part.LineSegment(App.Vector(-10.795, -25.4, 0), App.Vector(69.215, -25.4, 0)), False)
sketch12.addGeometry(Part.LineSegment(App.Vector(69.215, -25.4, 0), App.Vector(69.215, 26.67, 0)), False)
sketch12.addGeometry(Part.LineSegment(App.Vector(69.215, 26.67, 0), App.Vector(-10.795, 26.67, 0)), False)
sketch12.addConstraint(Sketcher.Constraint("Coincident", 0, 2, 1, 1))
sketch12.addConstraint(Sketcher.Constraint("Coincident", 1, 2, 2, 1))
sketch12.addConstraint(Sketcher.Constraint("Coincident", 2, 2, 3, 1))
sketch12.addConstraint(Sketcher.Constraint("Coincident", 3, 2, 0, 1))
sketch12.addConstraint(Sketcher.Constraint("Vertical", 0))
sketch12.addConstraint(Sketcher.Constraint("Horizontal", 1))
sketch12.addConstraint(Sketcher.Constraint("Vertical", 2))
sketch12.addConstraint(Sketcher.Constraint("Horizontal", 3))
sketch12.addConstraint(Sketcher.Constraint("DistanceY", 0, 2, -1, 1, Q("1 in")))
sketch12.addConstraint(Sketcher.Constraint("DistanceX", 1, 1, 1, 2, Q("3.15 in")))
sketch12.addConstraint(Sketcher.Constraint("DistanceY", 0, 2, 0, 1, Q("2.05 in")))
sketch12.addConstraint(Sketcher.Constraint("DistanceX", 0, 2, -1, 1, Q("0.425 in")))
pad6 = body.newObject("PartDesign::Pad", "Pad005")
pad6.Profile = sketch12
pad6.Length = Q("0.15 in")
doc.recompute()

fillet3 = body.newObject("PartDesign::Fillet", "Fillet002")
fillet3.Base = (pad6, edges_at(pad6, [
    (29.21, -25.4, 0),
    (69.215, 0.635, 0),
    (69.215, -25.4, 12.065),
    (29.21, 26.67, 0),
    (69.215, 26.67, 12.065),
    (29.21, -25.4, 24.13),
    (69.215, 0.635, 24.13),
    (29.21, 26.67, 24.13),
]))
fillet3.Radius = Q("0.1 in")
doc.recompute()

chamfer5 = body.newObject("PartDesign::Chamfer", "Chamfer004")
chamfer5.Base = (fillet3, edges_at(fillet3, [(-10.795, 22.86, 10.16), (-10.795, -21.59, 10.16), (-10.795, 0.635, 20.32)]))
chamfer5.Size = Q("0.05 in")

# Sketch on XY plane
sketch13 = body.newObject("Sketcher::SketchObject", "Sketch012")
sketch13.AttachmentSupport = (doc.getObject("XY_Plane"), [""])
sketch13.MapMode = "FlatFace"
sketch13.addGeometry(Part.LineSegment(App.Vector(-101.6, 8.343437, 0), App.Vector(-90.762834, 19.180603, 0)), False)
sketch13.addGeometry(Part.LineSegment(App.Vector(-90.762834, 19.180603, 0), App.Vector(-100.641115, 29.058885, 0)), False)
sketch13.addGeometry(Part.LineSegment(App.Vector(-100.641115, 29.058885, 0), App.Vector(-101.6, 28.1, 0)), False)
sketch13.addGeometry(Part.LineSegment(App.Vector(-101.6, 28.1, 0), App.Vector(-101.6, 8.343437, 0)), False)
sketch13.addGeometry(Part.LineSegment(App.Vector(-91.6, 38.1, 0), App.Vector(-92.558885, 37.141115, 0)), False)
sketch13.addGeometry(Part.LineSegment(App.Vector(-92.558885, 37.141115, 0), App.Vector(-82.680603, 27.262834, 0)), False)
sketch13.addGeometry(Part.LineSegment(App.Vector(-82.680603, 27.262834, 0), App.Vector(-71.843437, 38.1, 0)), False)
sketch13.addGeometry(Part.LineSegment(App.Vector(-71.843437, 38.1, 0), App.Vector(-91.6, 38.1, 0)), False)
sketch13.addConstraint(Sketcher.Constraint("Coincident", 0, 2, 1, 1))
sketch13.addConstraint(Sketcher.Constraint("Coincident", 1, 2, 2, 1))
sketch13.addConstraint(Sketcher.Constraint("Coincident", 2, 2, 3, 1))
sketch13.addConstraint(Sketcher.Constraint("Coincident", 3, 2, 0, 1))
sketch13.addConstraint(Sketcher.Constraint("Coincident", 4, 2, 5, 1))
sketch13.addConstraint(Sketcher.Constraint("Coincident", 5, 2, 6, 1))
sketch13.addConstraint(Sketcher.Constraint("Coincident", 6, 2, 7, 1))
sketch13.addConstraint(Sketcher.Constraint("Coincident", 7, 2, 4, 1))
sketch13.addConstraint(Sketcher.Constraint("Vertical", 3))
sketch13.addConstraint(Sketcher.Constraint("Horizontal", 7))
sketch13.addConstraint(Sketcher.Constraint("Perpendicular", 0, 1))
sketch13.addConstraint(Sketcher.Constraint("Perpendicular", 1, 2))
sketch13.addConstraint(Sketcher.Constraint("Parallel", 2, 4))
sketch13.addConstraint(Sketcher.Constraint("Perpendicular", 4, 5))
sketch13.addConstraint(Sketcher.Constraint("Perpendicular", 5, 6))
sketch13.addConstraint(Sketcher.Constraint("Equal", 7, 3))
sketch13.addConstraint(Sketcher.Constraint("Equal", 2, 4))
sketch13.addConstraint(Sketcher.Constraint("Equal", 1, 5))
sketch13.addConstraint(Sketcher.Constraint("DistanceX", 2, 2, -1, 1, Q("4 in")))
sketch13.addConstraint(Sketcher.Constraint("DistanceY", -1, 1, 6, 2, Q("1.5 in")))
sketch13.addConstraint(Sketcher.Constraint("Distance", 1, Q("0.55 in")))
sketch13.addConstraint(Sketcher.Constraint("DistanceY", -1, 1, 2, 2, 28.1))
sketch13.addConstraint(Sketcher.Constraint("DistanceX", 7, 2, -1, 1, 91.6))
sketch13.addConstraint(Sketcher.Constraint("DistanceY", 3, 2, 1, 2, 20.715448))
pad7 = body.newObject("PartDesign::Pad", "Pad006")
pad7.Profile = sketch13
pad7.Length = Q("0.4 in")

# Sketch on XY plane
sketch14 = body.newObject("Sketcher::SketchObject", "Sketch013")
sketch14.AttachmentSupport = (doc.getObject("XY_Plane"), [""])
sketch14.MapMode = "FlatFace"
sketch14.AttachmentOffset = App.Placement(App.Vector(0, 0, 0.4 * 25.4), App.Rotation())
sketch14.addGeometry(Part.LineSegment(App.Vector(-101.6, 8.343437, 0), App.Vector(-71.843437, 38.1, 0)), False)
sketch14.addGeometry(Part.LineSegment(App.Vector(-71.843437, 38.1, 0), App.Vector(-91.6, 38.1, 0)), False)
sketch14.addGeometry(Part.LineSegment(App.Vector(-91.6, 38.1, 0), App.Vector(-101.6, 28.1, 0)), False)
sketch14.addGeometry(Part.LineSegment(App.Vector(-101.6, 28.1, 0), App.Vector(-101.6, 8.343437, 0)), False)
sketch14.addConstraint(Sketcher.Constraint("Coincident", 0, 2, 1, 1))
sketch14.addConstraint(Sketcher.Constraint("Coincident", 1, 2, 2, 1))
sketch14.addConstraint(Sketcher.Constraint("Coincident", 2, 2, 3, 1))
sketch14.addConstraint(Sketcher.Constraint("Coincident", 3, 2, 0, 1))
sketch14.addConstraint(Sketcher.Constraint("Horizontal", 1))
sketch14.addConstraint(Sketcher.Constraint("Vertical", 3))
sketch14.addConstraint(Sketcher.Constraint("Parallel", 0, 2))
sketch14.addConstraint(Sketcher.Constraint("Equal", 1, 3))
sketch14.addConstraint(Sketcher.Constraint("DistanceX", 2, 2, -1, 1, Q("4 in")))
sketch14.addConstraint(Sketcher.Constraint("DistanceY", -1, 1, 0, 2, Q("1.5 in")))
sketch14.addConstraint(Sketcher.Constraint("DistanceX", 1, 2, -1, 1, 91.6))
sketch14.addConstraint(Sketcher.Constraint("DistanceX", 1, 2, 1, 1, 19.756563))
pad8 = body.newObject("PartDesign::Pad", "Pad007")
pad8.Profile = sketch14
pad8.Length = Q("0.2 in")
doc.recompute()

mirrored3 = body.newObject("PartDesign::Mirrored", "Mirrored002")
mirrored3.Originals = [pad7, pad8]
mirrored3.MirrorPlane = (doc.getObject("XZ_Plane"), [""])
body.Tip = mirrored3
doc.recompute()

mirrored4 = body.newObject("PartDesign::Mirrored", "Mirrored003")
mirrored4.Originals = [pad7, pad8]
mirrored4.MirrorPlane = (doc.getObject("YZ_Plane"), [""])
body.Tip = mirrored4

# Sketch on XY plane
sketch15 = body.newObject("Sketcher::SketchObject", "Sketch014")
sketch15.AttachmentSupport = (doc.getObject("XY_Plane"), [""])
sketch15.MapMode = "FlatFace"
sketch15.addGeometry(Part.LineSegment(App.Vector(101.6, -8.343437, 0), App.Vector(90.762834, -19.180603, 0)), False)
sketch15.addGeometry(Part.LineSegment(App.Vector(90.762834, -19.180603, 0), App.Vector(100.641115, -29.058885, 0)), False)
sketch15.addGeometry(Part.LineSegment(App.Vector(100.641115, -29.058885, 0), App.Vector(101.6, -28.1, 0)), False)
sketch15.addGeometry(Part.LineSegment(App.Vector(101.6, -28.1, 0), App.Vector(101.6, -8.343437, 0)), False)
sketch15.addGeometry(Part.LineSegment(App.Vector(91.6, -38.1, 0), App.Vector(92.558885, -37.141115, 0)), False)
sketch15.addGeometry(Part.LineSegment(App.Vector(92.558885, -37.141115, 0), App.Vector(82.680603, -27.262834, 0)), False)
sketch15.addGeometry(Part.LineSegment(App.Vector(82.680603, -27.262834, 0), App.Vector(71.843437, -38.1, 0)), False)
sketch15.addGeometry(Part.LineSegment(App.Vector(71.843437, -38.1, 0), App.Vector(91.6, -38.1, 0)), False)
sketch15.addConstraint(Sketcher.Constraint("Coincident", 0, 2, 1, 1))
sketch15.addConstraint(Sketcher.Constraint("Coincident", 1, 2, 2, 1))
sketch15.addConstraint(Sketcher.Constraint("Coincident", 2, 2, 3, 1))
sketch15.addConstraint(Sketcher.Constraint("Coincident", 3, 2, 0, 1))
sketch15.addConstraint(Sketcher.Constraint("Coincident", 4, 2, 5, 1))
sketch15.addConstraint(Sketcher.Constraint("Coincident", 5, 2, 6, 1))
sketch15.addConstraint(Sketcher.Constraint("Coincident", 6, 2, 7, 1))
sketch15.addConstraint(Sketcher.Constraint("Coincident", 7, 2, 4, 1))
sketch15.addConstraint(Sketcher.Constraint("Vertical", 3))
sketch15.addConstraint(Sketcher.Constraint("Horizontal", 7))
sketch15.addConstraint(Sketcher.Constraint("Perpendicular", 0, 1))
sketch15.addConstraint(Sketcher.Constraint("Perpendicular", 1, 2))
sketch15.addConstraint(Sketcher.Constraint("Parallel", 2, 4))
sketch15.addConstraint(Sketcher.Constraint("Perpendicular", 4, 5))
sketch15.addConstraint(Sketcher.Constraint("Perpendicular", 5, 6))
sketch15.addConstraint(Sketcher.Constraint("Equal", 7, 3))
sketch15.addConstraint(Sketcher.Constraint("Equal", 2, 4))
sketch15.addConstraint(Sketcher.Constraint("Equal", 1, 5))
sketch15.addConstraint(Sketcher.Constraint("DistanceX", -1, 1, 2, 2, Q("4 in")))
sketch15.addConstraint(Sketcher.Constraint("DistanceY", 6, 2, -1, 1, Q("1.5 in")))
sketch15.addConstraint(Sketcher.Constraint("Distance", 1, Q("0.55 in")))
sketch15.addConstraint(Sketcher.Constraint("DistanceY", 2, 2, -1, 1, 28.1))
sketch15.addConstraint(Sketcher.Constraint("DistanceX", -1, 1, 7, 2, 91.6))
sketch15.addConstraint(Sketcher.Constraint("DistanceY", 1, 2, 3, 2, 20.715448))
pad9 = body.newObject("PartDesign::Pad", "Pad008")
pad9.Profile = sketch15
pad9.Length = Q("0.4 in")

# Sketch on XY plane
sketch16 = body.newObject("Sketcher::SketchObject", "Sketch015")
sketch16.AttachmentSupport = (doc.getObject("XY_Plane"), [""])
sketch16.MapMode = "FlatFace"
sketch16.AttachmentOffset = App.Placement(App.Vector(0, 0, 0.4 * 25.4), App.Rotation())
sketch16.addGeometry(Part.LineSegment(App.Vector(101.6, -8.343437, 0), App.Vector(71.843437, -38.1, 0)), False)
sketch16.addGeometry(Part.LineSegment(App.Vector(71.843437, -38.1, 0), App.Vector(91.6, -38.1, 0)), False)
sketch16.addGeometry(Part.LineSegment(App.Vector(91.6, -38.1, 0), App.Vector(101.6, -28.1, 0)), False)
sketch16.addGeometry(Part.LineSegment(App.Vector(101.6, -28.1, 0), App.Vector(101.6, -8.343437, 0)), False)
sketch16.addConstraint(Sketcher.Constraint("Coincident", 0, 2, 1, 1))
sketch16.addConstraint(Sketcher.Constraint("Coincident", 1, 2, 2, 1))
sketch16.addConstraint(Sketcher.Constraint("Coincident", 2, 2, 3, 1))
sketch16.addConstraint(Sketcher.Constraint("Coincident", 3, 2, 0, 1))
sketch16.addConstraint(Sketcher.Constraint("Horizontal", 1))
sketch16.addConstraint(Sketcher.Constraint("Vertical", 3))
sketch16.addConstraint(Sketcher.Constraint("Parallel", 0, 2))
sketch16.addConstraint(Sketcher.Constraint("Equal", 1, 3))
sketch16.addConstraint(Sketcher.Constraint("DistanceX", -1, 1, 2, 2, Q("4 in")))
sketch16.addConstraint(Sketcher.Constraint("DistanceY", 0, 2, -1, 1, Q("1.5 in")))
sketch16.addConstraint(Sketcher.Constraint("DistanceX", -1, 1, 1, 2, 91.6))
sketch16.addConstraint(Sketcher.Constraint("DistanceX", 1, 1, 1, 2, 19.756563))
pad10 = body.newObject("PartDesign::Pad", "Pad009")
pad10.Profile = sketch16
pad10.Length = Q("0.2 in")

# Sketch on YZ plane
sketch17 = body.newObject("Sketcher::SketchObject", "Sketch016")
sketch17.AttachmentSupport = (doc.getObject("YZ_Plane"), [""])
sketch17.MapMode = "FlatFace"
sketch17.AttachmentOffset = App.Placement(App.Vector(0, 0, -2.7 * 25.4), App.Rotation())
sketch17.addGeometry(Part.LineSegment(App.Vector(92.612001, -50.090911, 0), App.Vector(-92.612001, -50.090911, 0)), False)
sketch17.addGeometry(Part.LineSegment(App.Vector(-92.612001, -50.090911, 0), App.Vector(-92.612001, 57.001353, 0)), False)
sketch17.addGeometry(Part.LineSegment(App.Vector(-92.612001, 57.001353, 0), App.Vector(92.612001, 57.001353, 0)), False)
sketch17.addGeometry(Part.LineSegment(App.Vector(92.612001, 57.001353, 0), App.Vector(92.612001, -50.090911, 0)), False)
sketch17.addConstraint(Sketcher.Constraint("Coincident", 0, 2, 1, 1))
sketch17.addConstraint(Sketcher.Constraint("Coincident", 1, 2, 2, 1))
sketch17.addConstraint(Sketcher.Constraint("Coincident", 2, 2, 3, 1))
sketch17.addConstraint(Sketcher.Constraint("Coincident", 3, 2, 0, 1))
sketch17.addConstraint(Sketcher.Constraint("Horizontal", 0))
sketch17.addConstraint(Sketcher.Constraint("Vertical", 1))
sketch17.addConstraint(Sketcher.Constraint("Horizontal", 2))
sketch17.addConstraint(Sketcher.Constraint("Vertical", 3))
sketch17.addConstraint(Sketcher.Constraint("DistanceX", 0, 2, 0, 1, 185.224001))
sketch17.addConstraint(Sketcher.Constraint("DistanceX", 0, 2, -1, 1, 92.612001))
sketch17.addConstraint(Sketcher.Constraint("DistanceY", 1, 1, 1, 2, 107.092264))
sketch17.addConstraint(Sketcher.Constraint("DistanceY", 0, 2, -1, 1, 50.090911))
pocket7 = body.newObject("PartDesign::Pocket", "Pocket006")
pocket7.Profile = sketch17
pocket7.Type = "ThroughAll"
pocket7.Reversed = True

# Sketch on XZ plane
sketch18 = body.newObject("Sketcher::SketchObject", "Sketch017")
sketch18.AttachmentSupport = (doc.getObject("XZ_Plane"), [""])
sketch18.MapMode = "FlatFace"
sketch18.AttachmentOffset = App.Placement(App.Vector(0, 0, 1.5 * 25.4), App.Rotation())
sketch18.addGeometry(Part.LineSegment(App.Vector(-146.692777, 51.583903, 0), App.Vector(-146.692777, -39.640212, 0)), False)
sketch18.addGeometry(Part.LineSegment(App.Vector(-146.692777, -39.640212, 0), App.Vector(-13.135673, -39.640212, 0)), False)
sketch18.addGeometry(Part.LineSegment(App.Vector(-13.135673, -39.640212, 0), App.Vector(-13.135673, 51.583903, 0)), False)
sketch18.addGeometry(Part.LineSegment(App.Vector(-13.135673, 51.583903, 0), App.Vector(-146.692777, 51.583903, 0)), False)
sketch18.addConstraint(Sketcher.Constraint("Coincident", 0, 2, 1, 1))
sketch18.addConstraint(Sketcher.Constraint("Coincident", 1, 2, 2, 1))
sketch18.addConstraint(Sketcher.Constraint("Coincident", 2, 2, 3, 1))
sketch18.addConstraint(Sketcher.Constraint("Coincident", 3, 2, 0, 1))
sketch18.addConstraint(Sketcher.Constraint("Vertical", 0))
sketch18.addConstraint(Sketcher.Constraint("Horizontal", 1))
sketch18.addConstraint(Sketcher.Constraint("Vertical", 2))
sketch18.addConstraint(Sketcher.Constraint("Horizontal", 3))
sketch18.addConstraint(Sketcher.Constraint("DistanceX", 1, 1, 1, 2, 133.557104))
sketch18.addConstraint(Sketcher.Constraint("DistanceY", 0, 2, 0, 1, 91.224115))
sketch18.addConstraint(Sketcher.Constraint("DistanceY", 0, 2, -1, 1, 39.640212))
sketch18.addConstraint(Sketcher.Constraint("DistanceX", 0, 2, -1, 1, 146.692777))
pocket8 = body.newObject("PartDesign::Pocket", "Pocket007")
pocket8.Profile = sketch18
pocket8.Length = Q("1.8 in")

doc.recompute()
